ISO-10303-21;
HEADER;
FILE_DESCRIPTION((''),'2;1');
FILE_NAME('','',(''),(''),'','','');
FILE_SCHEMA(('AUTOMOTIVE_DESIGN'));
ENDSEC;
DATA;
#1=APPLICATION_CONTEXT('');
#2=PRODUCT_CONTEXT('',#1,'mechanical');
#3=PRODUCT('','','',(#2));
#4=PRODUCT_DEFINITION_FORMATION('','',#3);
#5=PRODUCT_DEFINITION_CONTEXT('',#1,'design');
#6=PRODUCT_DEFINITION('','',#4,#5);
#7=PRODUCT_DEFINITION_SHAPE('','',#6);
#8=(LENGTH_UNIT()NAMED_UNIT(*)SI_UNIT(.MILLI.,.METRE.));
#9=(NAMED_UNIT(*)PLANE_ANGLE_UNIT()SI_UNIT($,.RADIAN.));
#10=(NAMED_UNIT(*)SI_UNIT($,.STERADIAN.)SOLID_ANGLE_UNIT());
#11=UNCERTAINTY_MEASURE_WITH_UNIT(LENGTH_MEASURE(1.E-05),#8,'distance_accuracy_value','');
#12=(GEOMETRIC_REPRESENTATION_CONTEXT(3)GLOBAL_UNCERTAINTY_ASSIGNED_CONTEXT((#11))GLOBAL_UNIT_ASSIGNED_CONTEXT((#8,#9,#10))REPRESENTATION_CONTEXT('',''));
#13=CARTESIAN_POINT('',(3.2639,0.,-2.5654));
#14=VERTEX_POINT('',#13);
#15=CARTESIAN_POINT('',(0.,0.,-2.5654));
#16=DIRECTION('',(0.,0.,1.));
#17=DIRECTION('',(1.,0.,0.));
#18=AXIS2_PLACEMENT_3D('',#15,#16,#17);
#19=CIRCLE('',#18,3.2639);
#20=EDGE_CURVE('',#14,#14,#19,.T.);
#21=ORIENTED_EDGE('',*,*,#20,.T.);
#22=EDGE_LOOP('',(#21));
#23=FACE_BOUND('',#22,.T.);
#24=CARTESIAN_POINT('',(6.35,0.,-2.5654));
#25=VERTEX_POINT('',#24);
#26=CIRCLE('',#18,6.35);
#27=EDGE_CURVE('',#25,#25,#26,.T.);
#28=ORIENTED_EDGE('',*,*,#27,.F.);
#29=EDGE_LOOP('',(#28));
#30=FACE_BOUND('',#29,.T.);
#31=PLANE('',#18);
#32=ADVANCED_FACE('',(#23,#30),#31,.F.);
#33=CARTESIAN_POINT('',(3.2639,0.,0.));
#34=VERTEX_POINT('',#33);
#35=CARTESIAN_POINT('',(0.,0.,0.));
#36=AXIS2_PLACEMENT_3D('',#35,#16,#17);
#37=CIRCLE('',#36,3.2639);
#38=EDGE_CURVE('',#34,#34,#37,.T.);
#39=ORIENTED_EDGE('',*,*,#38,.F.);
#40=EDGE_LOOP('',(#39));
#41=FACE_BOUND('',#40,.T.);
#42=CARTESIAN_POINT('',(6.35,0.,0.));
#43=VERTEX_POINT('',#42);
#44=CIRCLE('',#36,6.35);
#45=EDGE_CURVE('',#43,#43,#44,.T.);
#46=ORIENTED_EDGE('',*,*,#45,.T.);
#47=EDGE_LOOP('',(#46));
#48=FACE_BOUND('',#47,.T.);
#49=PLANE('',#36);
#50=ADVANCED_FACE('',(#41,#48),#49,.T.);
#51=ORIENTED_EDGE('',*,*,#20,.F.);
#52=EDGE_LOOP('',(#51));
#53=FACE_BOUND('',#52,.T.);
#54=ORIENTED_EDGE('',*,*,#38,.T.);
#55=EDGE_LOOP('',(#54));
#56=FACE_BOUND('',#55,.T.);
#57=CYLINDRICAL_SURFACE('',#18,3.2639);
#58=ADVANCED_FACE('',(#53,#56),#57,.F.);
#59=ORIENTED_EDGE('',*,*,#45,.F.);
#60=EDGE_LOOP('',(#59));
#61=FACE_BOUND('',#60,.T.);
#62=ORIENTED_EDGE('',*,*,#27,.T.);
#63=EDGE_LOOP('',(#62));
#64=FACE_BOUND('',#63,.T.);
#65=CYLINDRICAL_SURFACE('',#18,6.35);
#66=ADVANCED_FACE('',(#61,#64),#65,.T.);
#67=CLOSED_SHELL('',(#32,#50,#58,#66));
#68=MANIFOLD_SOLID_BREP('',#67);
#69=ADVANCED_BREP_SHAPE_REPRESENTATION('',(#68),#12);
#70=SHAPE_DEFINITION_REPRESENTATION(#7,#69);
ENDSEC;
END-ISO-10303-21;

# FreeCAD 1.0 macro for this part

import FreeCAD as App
import Part
import Sketcher
from FreeCAD import Vector
Q = App.Units.Quantity

doc = App.newDocument("Part")
body = doc.addObject("PartDesign::Body", "Body")

sketch1 = body.newObject("Sketcher::SketchObject", "Sketch")
sketch1.AttachmentSupport = (doc.getObject("XY_Plane"), [""])
sketch1.MapMode = "FlatFace"
sketch1.addGeometry(Part.Circle(Vector(0, 0, 0), Vector(0, 0, 1), 6.3), False)
sketch1.addGeometry(Part.Circle(Vector(0, 0, 0), Vector(0, 0, 1), 3.3), False)
sketch1.addConstraint(Sketcher.Constraint("Coincident", 0, 3, -1, 1))
sketch1.addConstraint(Sketcher.Constraint("Coincident", 1, 3, -1, 1))
sketch1.addConstraint(Sketcher.Constraint("Diameter", 0, Q("0.5 in")))
sketch1.addConstraint(Sketcher.Constraint("Diameter", 1, Q("0.257 in")))
pad1 = body.newObject("PartDesign::Pad", "Pad")
pad1.Profile = sketch1
pad1.Length = Q("0.101 in")
pad1.Reversed = True

doc.recompute()
